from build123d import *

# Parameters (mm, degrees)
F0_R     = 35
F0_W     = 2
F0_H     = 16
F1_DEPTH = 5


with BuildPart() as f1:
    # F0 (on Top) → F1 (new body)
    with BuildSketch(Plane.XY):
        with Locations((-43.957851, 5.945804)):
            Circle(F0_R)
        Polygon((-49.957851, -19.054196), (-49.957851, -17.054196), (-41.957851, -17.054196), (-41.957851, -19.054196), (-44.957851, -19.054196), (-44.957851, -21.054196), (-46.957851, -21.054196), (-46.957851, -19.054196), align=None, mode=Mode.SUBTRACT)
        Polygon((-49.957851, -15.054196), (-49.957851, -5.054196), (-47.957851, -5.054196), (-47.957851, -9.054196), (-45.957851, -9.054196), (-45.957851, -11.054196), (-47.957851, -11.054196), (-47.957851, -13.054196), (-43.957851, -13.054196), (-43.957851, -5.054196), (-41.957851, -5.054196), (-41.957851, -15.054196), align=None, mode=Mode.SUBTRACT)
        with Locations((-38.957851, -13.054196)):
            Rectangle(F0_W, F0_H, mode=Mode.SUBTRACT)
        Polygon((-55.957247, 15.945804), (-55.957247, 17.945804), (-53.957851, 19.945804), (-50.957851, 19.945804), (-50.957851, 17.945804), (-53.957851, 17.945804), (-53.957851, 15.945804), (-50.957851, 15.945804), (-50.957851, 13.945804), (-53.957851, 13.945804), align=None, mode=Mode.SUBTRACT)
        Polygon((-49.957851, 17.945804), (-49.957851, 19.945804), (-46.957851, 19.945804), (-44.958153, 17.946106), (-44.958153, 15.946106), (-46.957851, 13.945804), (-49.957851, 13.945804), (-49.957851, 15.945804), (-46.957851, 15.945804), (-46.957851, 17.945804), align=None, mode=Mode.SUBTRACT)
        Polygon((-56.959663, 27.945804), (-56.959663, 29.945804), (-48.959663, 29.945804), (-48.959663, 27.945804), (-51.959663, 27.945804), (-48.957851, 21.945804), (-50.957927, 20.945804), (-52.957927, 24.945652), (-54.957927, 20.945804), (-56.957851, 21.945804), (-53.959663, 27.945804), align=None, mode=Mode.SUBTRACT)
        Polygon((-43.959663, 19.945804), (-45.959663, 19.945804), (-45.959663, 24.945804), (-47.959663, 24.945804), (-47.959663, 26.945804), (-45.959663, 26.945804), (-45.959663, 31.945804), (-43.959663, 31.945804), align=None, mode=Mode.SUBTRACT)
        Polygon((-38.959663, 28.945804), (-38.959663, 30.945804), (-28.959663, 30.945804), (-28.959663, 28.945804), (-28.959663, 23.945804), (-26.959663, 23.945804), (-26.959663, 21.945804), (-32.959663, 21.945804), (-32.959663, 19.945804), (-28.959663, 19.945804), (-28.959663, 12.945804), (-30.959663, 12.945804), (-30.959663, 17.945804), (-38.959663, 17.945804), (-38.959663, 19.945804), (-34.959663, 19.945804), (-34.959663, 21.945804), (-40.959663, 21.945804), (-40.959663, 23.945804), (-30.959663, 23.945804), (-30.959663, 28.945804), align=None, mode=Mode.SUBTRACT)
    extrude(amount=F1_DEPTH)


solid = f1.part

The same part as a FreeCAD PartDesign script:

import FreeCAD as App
import Part
import Sketcher
from FreeCAD import Vector
Q = App.Units.Quantity

doc = App.newDocument("Part")
body = doc.addObject("PartDesign::Body", "Body")

# Sketch on XY plane
sketch1 = doc.addObject("Sketcher::SketchObject", "Sketch")
body.addObject(sketch1)
sketch1.AttachmentSupport = (doc.XY_Plane, [""])
sketch1.MapMode = "FlatFace"
sketch1.addGeometry(Part.Circle(Vector(-43.957851, 5.945804, 0), Vector(0, 0, 1), 35), False)
sketch1.addGeometry(Part.LineSegment(Vector(-46.957851, -19.054196, 0), Vector(-49.957851, -19.054196, 0)), False)
sketch1.addGeometry(Part.LineSegment(Vector(-49.957851, -19.054196, 0), Vector(-49.957851, -17.054196, 0)), False)
sketch1.addGeometry(Part.LineSegment(Vector(-49.957851, -17.054196, 0), Vector(-41.957851, -17.054196, 0)), False)
sketch1.addGeometry(Part.LineSegment(Vector(-41.957851, -17.054196, 0), Vector(-41.957851, -19.054196, 0)), False)
sketch1.addGeometry(Part.LineSegment(Vector(-41.957851, -19.054196, 0), Vector(-44.957851, -19.054196, 0)), False)
sketch1.addGeometry(Part.LineSegment(Vector(-44.957851, -19.054196, 0), Vector(-44.957851, -21.054196, 0)), False)
sketch1.addGeometry(Part.LineSegment(Vector(-44.957851, -21.054196, 0), Vector(-46.957851, -21.054196, 0)), False)
sketch1.addGeometry(Part.LineSegment(Vector(-46.957851, -21.054196, 0), Vector(-46.957851, -19.054196, 0)), False)
sketch1.addGeometry(Part.LineSegment(Vector(-41.957851, -15.054196, 0), Vector(-49.957851, -15.054196, 0)), False)
sketch1.addGeometry(Part.LineSegment(Vector(-49.957851, -15.054196, 0), Vector(-49.957851, -5.054196, 0)), False)
sketch1.addGeometry(Part.LineSegment(Vector(-49.957851, -5.054196, 0), Vector(-47.957851, -5.054196, 0)), False)
sketch1.addGeometry(Part.LineSegment(Vector(-47.957851, -5.054196, 0), Vector(-47.957851, -9.054196, 0)), False)
sketch1.addGeometry(Part.LineSegment(Vector(-47.957851, -9.054196, 0), Vector(-45.957851, -9.054196, 0)), False)
sketch1.addGeometry(Part.LineSegment(Vector(-45.957851, -9.054196, 0), Vector(-45.957851, -11.054196, 0)), False)
sketch1.addGeometry(Part.LineSegment(Vector(-45.957851, -11.054196, 0), Vector(-47.957851, -11.054196, 0)), False)
sketch1.addGeometry(Part.LineSegment(Vector(-47.957851, -11.054196, 0), Vector(-47.957851, -13.054196, 0)), False)
sketch1.addGeometry(Part.LineSegment(Vector(-47.957851, -13.054196, 0), Vector(-43.957851, -13.054196, 0)), False)
sketch1.addGeometry(Part.LineSegment(Vector(-43.957851, -13.054196, 0), Vector(-43.957851, -5.054196, 0)), False)
sketch1.addGeometry(Part.LineSegment(Vector(-43.957851, -5.054196, 0), Vector(-41.957851, -5.054196, 0)), False)
sketch1.addGeometry(Part.LineSegment(Vector(-41.957851, -5.054196, 0), Vector(-41.957851, -15.054196, 0)), False)
sketch1.addGeometry(Part.LineSegment(Vector(-37.957851, -21.054196, 0), Vector(-39.957851, -21.054196, 0)), False)
sketch1.addGeometry(Part.LineSegment(Vector(-39.957851, -21.054196, 0), Vector(-39.957851, -5.054196, 0)), False)
sketch1.addGeometry(Part.LineSegment(Vector(-39.957851, -5.054196, 0), Vector(-37.957851, -5.054196, 0)), False)
sketch1.addGeometry(Part.LineSegment(Vector(-37.957851, -5.054196, 0), Vector(-37.957851, -21.054196, 0)), False)
sketch1.addGeometry(Part.LineSegment(Vector(-53.957851, 13.945804, 0), Vector(-55.957247, 15.945804, 0)), False)
sketch1.addGeometry(Part.LineSegment(Vector(-55.957247, 15.945804, 0), Vector(-55.957247, 17.945804, 0)), False)
sketch1.addGeometry(Part.LineSegment(Vector(-55.957247, 17.945804, 0), Vector(-53.957851, 19.945804, 0)), False)
sketch1.addGeometry(Part.LineSegment(Vector(-53.957851, 19.945804, 0), Vector(-50.957851, 19.945804, 0)), False)
sketch1.addGeometry(Part.LineSegment(Vector(-50.957851, 19.945804, 0), Vector(-50.957851, 17.945804, 0)), False)
sketch1.addGeometry(Part.LineSegment(Vector(-50.957851, 17.945804, 0), Vector(-53.957851, 17.945804, 0)), False)
sketch1.addGeometry(Part.LineSegment(Vector(-53.957851, 17.945804, 0), Vector(-53.957851, 15.945804, 0)), False)
sketch1.addGeometry(Part.LineSegment(Vector(-53.957851, 15.945804, 0), Vector(-50.957851, 15.945804, 0)), False)
sketch1.addGeometry(Part.LineSegment(Vector(-50.957851, 15.945804, 0), Vector(-50.957851, 13.945804, 0)), False)
sketch1.addGeometry(Part.LineSegment(Vector(-50.957851, 13.945804, 0), Vector(-53.957851, 13.945804, 0)), False)
sketch1.addGeometry(Part.LineSegment(Vector(-46.957851, 17.945804, 0), Vector(-49.957851, 17.945804, 0)), False)
sketch1.addGeometry(Part.LineSegment(Vector(-49.957851, 17.945804, 0), Vector(-49.957851, 19.945804, 0)), False)
sketch1.addGeometry(Part.LineSegment(Vector(-49.957851, 19.945804, 0), Vector(-46.957851, 19.945804, 0)), False)
sketch1.addGeometry(Part.LineSegment(Vector(-46.957851, 19.945804, 0), Vector(-44.958153, 17.946106, 0)), False)
sketch1.addGeometry(Part.LineSegment(Vector(-44.958153, 17.946106, 0), Vector(-44.958153, 15.946106, 0)), False)
sketch1.addGeometry(Part.LineSegment(Vector(-44.958153, 15.946106, 0), Vector(-46.957851, 13.945804, 0)), False)
sketch1.addGeometry(Part.LineSegment(Vector(-46.957851, 13.945804, 0), Vector(-49.957851, 13.945804, 0)), False)
sketch1.addGeometry(Part.LineSegment(Vector(-49.957851, 13.945804, 0), Vector(-49.957851, 15.945804, 0)), False)
sketch1.addGeometry(Part.LineSegment(Vector(-49.957851, 15.945804, 0), Vector(-46.957851, 15.945804, 0)), False)
sketch1.addGeometry(Part.LineSegment(Vector(-46.957851, 15.945804, 0), Vector(-46.957851, 17.945804, 0)), False)
sketch1.addGeometry(Part.LineSegment(Vector(-53.959663, 27.945804, 0), Vector(-56.959663, 27.945804, 0)), False)
sketch1.addGeometry(Part.LineSegment(Vector(-56.959663, 27.945804, 0), Vector(-56.959663, 29.945804, 0)), False)
sketch1.addGeometry(Part.LineSegment(Vector(-56.959663, 29.945804, 0), Vector(-48.959663, 29.945804, 0)), False)
sketch1.addGeometry(Part.LineSegment(Vector(-48.959663, 29.945804, 0), Vector(-48.959663, 27.945804, 0)), False)
sketch1.addGeometry(Part.LineSegment(Vector(-48.959663, 27.945804, 0), Vector(-51.959663, 27.945804, 0)), False)
sketch1.addGeometry(Part.LineSegment(Vector(-51.959663, 27.945804, 0), Vector(-48.957851, 21.945804, 0)), False)
sketch1.addGeometry(Part.LineSegment(Vector(-48.957851, 21.945804, 0), Vector(-50.957927, 20.945804, 0)), False)
sketch1.addGeometry(Part.LineSegment(Vector(-50.957927, 20.945804, 0), Vector(-52.957927, 24.945652, 0)), False)
sketch1.addGeometry(Part.LineSegment(Vector(-52.957927, 24.945652, 0), Vector(-54.957927, 20.945804, 0)), False)
sketch1.addGeometry(Part.LineSegment(Vector(-54.957927, 20.945804, 0), Vector(-56.957851, 21.945804, 0)), False)
sketch1.addGeometry(Part.LineSegment(Vector(-56.957851, 21.945804, 0), Vector(-53.959663, 27.945804, 0)), False)
sketch1.addGeometry(Part.LineSegment(Vector(-43.959663, 31.945804, 0), Vector(-43.959663, 19.945804, 0)), False)
sketch1.addGeometry(Part.LineSegment(Vector(-43.959663, 19.945804, 0), Vector(-45.959663, 19.945804, 0)), False)
sketch1.addGeometry(Part.LineSegment(Vector(-45.959663, 19.945804, 0), Vector(-45.959663, 24.945804, 0)), False)
sketch1.addGeometry(Part.LineSegment(Vector(-45.959663, 24.945804, 0), Vector(-47.959663, 24.945804, 0)), False)
sketch1.addGeometry(Part.LineSegment(Vector(-47.959663, 24.945804, 0), Vector(-47.959663, 26.945804, 0)), False)
sketch1.addGeometry(Part.LineSegment(Vector(-47.959663, 26.945804, 0), Vector(-45.959663, 26.945804, 0)), False)
sketch1.addGeometry(Part.LineSegment(Vector(-45.959663, 26.945804, 0), Vector(-45.959663, 31.945804, 0)), False)
sketch1.addGeometry(Part.LineSegment(Vector(-45.959663, 31.945804, 0), Vector(-43.959663, 31.945804, 0)), False)
sketch1.addGeometry(Part.LineSegment(Vector(-30.959663, 28.945804, 0), Vector(-38.959663, 28.945804, 0)), False)
sketch1.addGeometry(Part.LineSegment(Vector(-38.959663, 28.945804, 0), Vector(-38.959663, 30.945804, 0)), False)
sketch1.addGeometry(Part.LineSegment(Vector(-38.959663, 30.945804, 0), Vector(-28.959663, 30.945804, 0)), False)
sketch1.addGeometry(Part.LineSegment(Vector(-28.959663, 30.945804, 0), Vector(-28.959663, 23.945804, 0)), False)
sketch1.addGeometry(Part.LineSegment(Vector(-28.959663, 23.945804, 0), Vector(-26.959663, 23.945804, 0)), False)
sketch1.addGeometry(Part.LineSegment(Vector(-26.959663, 23.945804, 0), Vector(-26.959663, 21.945804, 0)), False)
sketch1.addGeometry(Part.LineSegment(Vector(-26.959663, 21.945804, 0), Vector(-32.959663, 21.945804, 0)), False)
sketch1.addGeometry(Part.LineSegment(Vector(-32.959663, 21.945804, 0), Vector(-32.959663, 19.945804, 0)), False)
sketch1.addGeometry(Part.LineSegment(Vector(-32.959663, 19.945804, 0), Vector(-28.959663, 19.945804, 0)), False)
sketch1.addGeometry(Part.LineSegment(Vector(-28.959663, 19.945804, 0), Vector(-28.959663, 12.945804, 0)), False)
sketch1.addGeometry(Part.LineSegment(Vector(-28.959663, 12.945804, 0), Vector(-30.959663, 12.945804, 0)), False)
sketch1.addGeometry(Part.LineSegment(Vector(-30.959663, 12.945804, 0), Vector(-30.959663, 17.945804, 0)), False)
sketch1.addGeometry(Part.LineSegment(Vector(-30.959663, 17.945804, 0), Vector(-38.959663, 17.945804, 0)), False)
sketch1.addGeometry(Part.LineSegment(Vector(-38.959663, 17.945804, 0), Vector(-38.959663, 19.945804, 0)), False)
sketch1.addGeometry(Part.LineSegment(Vector(-38.959663, 19.945804, 0), Vector(-34.959663, 19.945804, 0)), False)
sketch1.addGeometry(Part.LineSegment(Vector(-34.959663, 19.945804, 0), Vector(-34.959663, 21.945804, 0)), False)
sketch1.addGeometry(Part.LineSegment(Vector(-34.959663, 21.945804, 0), Vector(-40.959663, 21.945804, 0)), False)
sketch1.addGeometry(Part.LineSegment(Vector(-40.959663, 21.945804, 0), Vector(-40.959663, 23.945804, 0)), False)
sketch1.addGeometry(Part.LineSegment(Vector(-40.959663, 23.945804, 0), Vector(-30.959663, 23.945804, 0)), False)
sketch1.addGeometry(Part.LineSegment(Vector(-30.959663, 23.945804, 0), Vector(-30.959663, 28.945804, 0)), False)
sketch1.addConstraint(Sketcher.Constraint("Coincident", 1, 2, 2, 1))
sketch1.addConstraint(Sketcher.Constraint("Coincident", 2, 2, 3, 1))
sketch1.addConstraint(Sketcher.Constraint("Coincident", 3, 2, 4, 1))
sketch1.addConstraint(Sketcher.Constraint("Coincident", 4, 2, 5, 1))
sketch1.addConstraint(Sketcher.Constraint("Coincident", 5, 2, 6, 1))
sketch1.addConstraint(Sketcher.Constraint("Coincident", 6, 2, 7, 1))
sketch1.addConstraint(Sketcher.Constraint("Coincident", 7, 2, 8, 1))
sketch1.addConstraint(Sketcher.Constraint("Coincident", 8, 2, 1, 1))
sketch1.addConstraint(Sketcher.Constraint("Coincident", 9, 2, 10, 1))
sketch1.addConstraint(Sketcher.Constraint("Coincident", 10, 2, 11, 1))
sketch1.addConstraint(Sketcher.Constraint("Coincident", 11, 2, 12, 1))
sketch1.addConstraint(Sketcher.Constraint("Coincident", 12, 2, 13, 1))
sketch1.addConstraint(Sketcher.Constraint("Coincident", 13, 2, 14, 1))
sketch1.addConstraint(Sketcher.Constraint("Coincident", 14, 2, 15, 1))
sketch1.addConstraint(Sketcher.Constraint("Coincident", 15, 2, 16, 1))
sketch1.addConstraint(Sketcher.Constraint("Coincident", 16, 2, 17, 1))
sketch1.addConstraint(Sketcher.Constraint("Coincident", 17, 2, 18, 1))
sketch1.addConstraint(Sketcher.Constraint("Coincident", 18, 2, 19, 1))
sketch1.addConstraint(Sketcher.Constraint("Coincident", 19, 2, 20, 1))
sketch1.addConstraint(Sketcher.Constraint("Coincident", 20, 2, 9, 1))
sketch1.addConstraint(Sketcher.Constraint("Coincident", 21, 2, 22, 1))
sketch1.addConstraint(Sketcher.Constraint("Coincident", 22, 2, 23, 1))
sketch1.addConstraint(Sketcher.Constraint("Coincident", 23, 2, 24, 1))
sketch1.addConstraint(Sketcher.Constraint("Coincident", 24, 2, 21, 1))
sketch1.addConstraint(Sketcher.Constraint("Coincident", 25, 2, 26, 1))
sketch1.addConstraint(Sketcher.Constraint("Coincident", 26, 2, 27, 1))
sketch1.addConstraint(Sketcher.Constraint("Coincident", 27, 2, 28, 1))
sketch1.addConstraint(Sketcher.Constraint("Coincident", 28, 2, 29, 1))
sketch1.addConstraint(Sketcher.Constraint("Coincident", 29, 2, 30, 1))
sketch1.addConstraint(Sketcher.Constraint("Coincident", 30, 2, 31, 1))
sketch1.addConstraint(Sketcher.Constraint("Coincident", 31, 2, 32, 1))
sketch1.addConstraint(Sketcher.Constraint("Coincident", 32, 2, 33, 1))
sketch1.addConstraint(Sketcher.Constraint("Coincident", 33, 2, 34, 1))
sketch1.addConstraint(Sketcher.Constraint("Coincident", 34, 2, 25, 1))
sketch1.addConstraint(Sketcher.Constraint("Coincident", 35, 2, 36, 1))
sketch1.addConstraint(Sketcher.Constraint("Coincident", 36, 2, 37, 1))
sketch1.addConstraint(Sketcher.Constraint("Coincident", 37, 2, 38, 1))
sketch1.addConstraint(Sketcher.Constraint("Coincident", 38, 2, 39, 1))
sketch1.addConstraint(Sketcher.Constraint("Coincident", 39, 2, 40, 1))
sketch1.addConstraint(Sketcher.Constraint("Coincident", 40, 2, 41, 1))
sketch1.addConstraint(Sketcher.Constraint("Coincident", 41, 2, 42, 1))
sketch1.addConstraint(Sketcher.Constraint("Coincident", 42, 2, 43, 1))
sketch1.addConstraint(Sketcher.Constraint("Coincident", 43, 2, 44, 1))
sketch1.addConstraint(Sketcher.Constraint("Coincident", 44, 2, 35, 1))
sketch1.addConstraint(Sketcher.Constraint("Coincident", 45, 2, 46, 1))
sketch1.addConstraint(Sketcher.Constraint("Coincident", 46, 2, 47, 1))
sketch1.addConstraint(Sketcher.Constraint("Coincident", 47, 2, 48, 1))
sketch1.addConstraint(Sketcher.Constraint("Coincident", 48, 2, 49, 1))
sketch1.addConstraint(Sketcher.Constraint("Coincident", 49, 2, 50, 1))
sketch1.addConstraint(Sketcher.Constraint("Coincident", 50, 2, 51, 1))
sketch1.addConstraint(Sketcher.Constraint("Coincident", 51, 2, 52, 1))
sketch1.addConstraint(Sketcher.Constraint("Coincident", 52, 2, 53, 1))
sketch1.addConstraint(Sketcher.Constraint("Coincident", 53, 2, 54, 1))
sketch1.addConstraint(Sketcher.Constraint("Coincident", 54, 2, 55, 1))
sketch1.addConstraint(Sketcher.Constraint("Coincident", 55, 2, 45, 1))
sketch1.addConstraint(Sketcher.Constraint("Coincident", 56, 2, 57, 1))
sketch1.addConstraint(Sketcher.Constraint("Coincident", 57, 2, 58, 1))
sketch1.addConstraint(Sketcher.Constraint("Coincident", 58, 2, 59, 1))
sketch1.addConstraint(Sketcher.Constraint("Coincident", 59, 2, 60, 1))
sketch1.addConstraint(Sketcher.Constraint("Coincident", 60, 2, 61, 1))
sketch1.addConstraint(Sketcher.Constraint("Coincident", 61, 2, 62, 1))
sketch1.addConstraint(Sketcher.Constraint("Coincident", 62, 2, 63, 1))
sketch1.addConstraint(Sketcher.Constraint("Coincident", 63, 2, 56, 1))
sketch1.addConstraint(Sketcher.Constraint("Coincident", 64, 2, 65, 1))
sketch1.addConstraint(Sketcher.Constraint("Coincident", 65, 2, 66, 1))
sketch1.addConstraint(Sketcher.Constraint("Coincident", 66, 2, 67, 1))
sketch1.addConstraint(Sketcher.Constraint("Coincident", 67, 2, 68, 1))
sketch1.addConstraint(Sketcher.Constraint("Coincident", 68, 2, 69, 1))
sketch1.addConstraint(Sketcher.Constraint("Coincident", 69, 2, 70, 1))
sketch1.addConstraint(Sketcher.Constraint("Coincident", 70, 2, 71, 1))
sketch1.addConstraint(Sketcher.Constraint("Coincident", 71, 2, 72, 1))
sketch1.addConstraint(Sketcher.Constraint("Coincident", 72, 2, 73, 1))
sketch1.addConstraint(Sketcher.Constraint("Coincident", 73, 2, 74, 1))
sketch1.addConstraint(Sketcher.Constraint("Coincident", 74, 2, 75, 1))
sketch1.addConstraint(Sketcher.Constraint("Coincident", 75, 2, 76, 1))
sketch1.addConstraint(Sketcher.Constraint("Coincident", 76, 2, 77, 1))
sketch1.addConstraint(Sketcher.Constraint("Coincident", 77, 2, 78, 1))
sketch1.addConstraint(Sketcher.Constraint("Coincident", 78, 2, 79, 1))
sketch1.addConstraint(Sketcher.Constraint("Coincident", 79, 2, 80, 1))
sketch1.addConstraint(Sketcher.Constraint("Coincident", 80, 2, 81, 1))
sketch1.addConstraint(Sketcher.Constraint("Coincident", 81, 2, 82, 1))
sketch1.addConstraint(Sketcher.Constraint("Coincident", 82, 2, 83, 1))
sketch1.addConstraint(Sketcher.Constraint("Coincident", 83, 2, 64, 1))
sketch1.addConstraint(Sketcher.Constraint("Horizontal", 1))
sketch1.addConstraint(Sketcher.Constraint("Vertical", 2))
sketch1.addConstraint(Sketcher.Constraint("Horizontal", 3))
sketch1.addConstraint(Sketcher.Constraint("Vertical", 4))
sketch1.addConstraint(Sketcher.Constraint("Horizontal", 5))
sketch1.addConstraint(Sketcher.Constraint("Vertical", 6))
sketch1.addConstraint(Sketcher.Constraint("Horizontal", 7))
sketch1.addConstraint(Sketcher.Constraint("Vertical", 8))
sketch1.addConstraint(Sketcher.Constraint("Horizontal", 9))
sketch1.addConstraint(Sketcher.Constraint("Vertical", 10))
sketch1.addConstraint(Sketcher.Constraint("Horizontal", 11))
sketch1.addConstraint(Sketcher.Constraint("Vertical", 12))
sketch1.addConstraint(Sketcher.Constraint("Horizontal", 13))
sketch1.addConstraint(Sketcher.Constraint("Vertical", 14))
sketch1.addConstraint(Sketcher.Constraint("Horizontal", 15))
sketch1.addConstraint(Sketcher.Constraint("Vertical", 16))
sketch1.addConstraint(Sketcher.Constraint("Horizontal", 17))
sketch1.addConstraint(Sketcher.Constraint("Vertical", 18))
sketch1.addConstraint(Sketcher.Constraint("Horizontal", 19))
sketch1.addConstraint(Sketcher.Constraint("Vertical", 20))
sketch1.addConstraint(Sketcher.Constraint("Horizontal", 21))
sketch1.addConstraint(Sketcher.Constraint("Vertical", 22))
sketch1.addConstraint(Sketcher.Constraint("Horizontal", 23))
sketch1.addConstraint(Sketcher.Constraint("Vertical", 24))
sketch1.addConstraint(Sketcher.Constraint("Vertical", 26))
sketch1.addConstraint(Sketcher.Constraint("Horizontal", 28))
sketch1.addConstraint(Sketcher.Constraint("Vertical", 29))
sketch1.addConstraint(Sketcher.Constraint("Horizontal", 30))
sketch1.addConstraint(Sketcher.Constraint("Vertical", 31))
sketch1.addConstraint(Sketcher.Constraint("Horizontal", 32))
sketch1.addConstraint(Sketcher.Constraint("Vertical", 33))
sketch1.addConstraint(Sketcher.Constraint("Horizontal", 34))
sketch1.addConstraint(Sketcher.Constraint("Horizontal", 35))
sketch1.addConstraint(Sketcher.Constraint("Vertical", 36))
sketch1.addConstraint(Sketcher.Constraint("Horizontal", 37))
sketch1.addConstraint(Sketcher.Constraint("Vertical", 39))
sketch1.addConstraint(Sketcher.Constraint("Horizontal", 41))
sketch1.addConstraint(Sketcher.Constraint("Vertical", 42))
sketch1.addConstraint(Sketcher.Constraint("Horizontal", 43))
sketch1.addConstraint(Sketcher.Constraint("Vertical", 44))
sketch1.addConstraint(Sketcher.Constraint("Horizontal", 45))
sketch1.addConstraint(Sketcher.Constraint("Vertical", 46))
sketch1.addConstraint(Sketcher.Constraint("Horizontal", 47))
sketch1.addConstraint(Sketcher.Constraint("Vertical", 48))
sketch1.addConstraint(Sketcher.Constraint("Horizontal", 49))
sketch1.addConstraint(Sketcher.Constraint("Vertical", 56))
sketch1.addConstraint(Sketcher.Constraint("Horizontal", 57))
sketch1.addConstraint(Sketcher.Constraint("Vertical", 58))
sketch1.addConstraint(Sketcher.Constraint("Horizontal", 59))
sketch1.addConstraint(Sketcher.Constraint("Vertical", 60))
sketch1.addConstraint(Sketcher.Constraint("Horizontal", 61))
sketch1.addConstraint(Sketcher.Constraint("Vertical", 62))
sketch1.addConstraint(Sketcher.Constraint("Horizontal", 63))
sketch1.addConstraint(Sketcher.Constraint("Horizontal", 64))
sketch1.addConstraint(Sketcher.Constraint("Vertical", 65))
sketch1.addConstraint(Sketcher.Constraint("Horizontal", 66))
sketch1.addConstraint(Sketcher.Constraint("Vertical", 67))
sketch1.addConstraint(Sketcher.Constraint("Horizontal", 68))
sketch1.addConstraint(Sketcher.Constraint("Vertical", 69))
sketch1.addConstraint(Sketcher.Constraint("Horizontal", 70))
sketch1.addConstraint(Sketcher.Constraint("Vertical", 71))
sketch1.addConstraint(Sketcher.Constraint("Horizontal", 72))
sketch1.addConstraint(Sketcher.Constraint("Vertical", 73))
sketch1.addConstraint(Sketcher.Constraint("Horizontal", 74))
sketch1.addConstraint(Sketcher.Constraint("Vertical", 75))
sketch1.addConstraint(Sketcher.Constraint("Horizontal", 76))
sketch1.addConstraint(Sketcher.Constraint("Vertical", 77))
sketch1.addConstraint(Sketcher.Constraint("Horizontal", 78))
sketch1.addConstraint(Sketcher.Constraint("Vertical", 79))
sketch1.addConstraint(Sketcher.Constraint("Horizontal", 80))
sketch1.addConstraint(Sketcher.Constraint("Vertical", 81))
sketch1.addConstraint(Sketcher.Constraint("Horizontal", 82))
sketch1.addConstraint(Sketcher.Constraint("Vertical", 83))
sketch1.addConstraint(Sketcher.Constraint("Parallel", 27, 40))
sketch1.addConstraint(Sketcher.Constraint("Perpendicular", 53, 54))
sketch1.addConstraint(Sketcher.Constraint("Horizontal", 1, 2, 4, 2))
sketch1.addConstraint(Sketcher.Constraint("Horizontal", 11, 2, 18, 2))
sketch1.addConstraint(Sketcher.Constraint("Horizontal", 7, 2, 21, 2))
sketch1.addConstraint(Sketcher.Constraint("Horizontal", 19, 2, 22, 2))
sketch1.addConstraint(Sketcher.Constraint("Horizontal", 26, 2, 29, 2))
sketch1.addConstraint(Sketcher.Constraint("Horizontal", 25, 2, 31, 2))
sketch1.addConstraint(Sketcher.Constraint("Horizontal", 30, 2, 35, 2))
sketch1.addConstraint(Sketcher.Constraint("Horizontal", 28, 2, 36, 2))
sketch1.addConstraint(Sketcher.Constraint("Horizontal", 34, 2, 40, 2))
sketch1.addConstraint(Sketcher.Constraint("Horizontal", 32, 2, 42, 2))
sketch1.addConstraint(Sketcher.Constraint("Horizontal", 45, 2, 48, 2))
sketch1.addConstraint(Sketcher.Constraint("Horizontal", 51, 2, 53, 2))
sketch1.addConstraint(Sketcher.Constraint("Horizontal", 50, 2, 54, 2))
sketch1.addConstraint(Sketcher.Constraint("Horizontal", 37, 2, 56, 2))
sketch1.addConstraint(Sketcher.Constraint("Horizontal", 54, 2, 69, 2))
sketch1.addConstraint(Sketcher.Constraint("Horizontal", 57, 2, 71, 2))
sketch1.addConstraint(Sketcher.Constraint("Horizontal", 44, 2, 75, 2))
sketch1.addConstraint(Sketcher.Constraint("Horizontal", 72, 2, 77, 2))
sketch1.addConstraint(Sketcher.Constraint("Horizontal", 70, 2, 79, 2))
sketch1.addConstraint(Sketcher.Constraint("Horizontal", 68, 2, 81, 2))
sketch1.addConstraint(Sketcher.Constraint("Vertical", 2, 2, 9, 2))
sketch1.addConstraint(Sketcher.Constraint("Vertical", 12, 2, 15, 2))
sketch1.addConstraint(Sketcher.Constraint("Vertical", 0, 3, 17, 2))
sketch1.addConstraint(Sketcher.Constraint("Vertical", 4, 2, 19, 2))
sketch1.addConstraint(Sketcher.Constraint("Vertical", 27, 2, 30, 2))
sketch1.addConstraint(Sketcher.Constraint("Vertical", 29, 2, 32, 2))
sketch1.addConstraint(Sketcher.Constraint("Vertical", 31, 2, 34, 2))
sketch1.addConstraint(Sketcher.Constraint("Vertical", 10, 2, 35, 2))
sketch1.addConstraint(Sketcher.Constraint("Vertical", 8, 2, 37, 2))
sketch1.addConstraint(Sketcher.Constraint("Vertical", 37, 2, 40, 2))
sketch1.addConstraint(Sketcher.Constraint("Vertical", 36, 2, 41, 2))
sketch1.addConstraint(Sketcher.Constraint("Vertical", 40, 2, 43, 2))
sketch1.addConstraint(Sketcher.Constraint("Vertical", 58, 2, 61, 2))
sketch1.addConstraint(Sketcher.Constraint("Vertical", 67, 2, 72, 2))
sketch1.addConstraint(Sketcher.Constraint("Vertical", 65, 2, 76, 2))
sketch1.addConstraint(Sketcher.Constraint("Vertical", 75, 2, 82, 2))
sketch1.addConstraint(Sketcher.Constraint("Equal", 1, 5))
sketch1.addConstraint(Sketcher.Constraint("Equal", 7, 11))
sketch1.addConstraint(Sketcher.Constraint("Equal", 11, 13))
sketch1.addConstraint(Sketcher.Constraint("Equal", 15, 19))
sketch1.addConstraint(Sketcher.Constraint("Equal", 19, 21))
sketch1.addConstraint(Sketcher.Constraint("Equal", 5, 28))
sketch1.addConstraint(Sketcher.Constraint("Equal", 43, 45))
sketch1.addConstraint(Sketcher.Constraint("Equal", 9, 47))
sketch1.addConstraint(Sketcher.Constraint("Equal", 45, 49))
sketch1.addConstraint(Sketcher.Constraint("Equal", 23, 57))
sketch1.addConstraint(Sketcher.Constraint("Equal", 57, 59))
sketch1.addConstraint(Sketcher.Constraint("Equal", 47, 64))
sketch1.addConstraint(Sketcher.Constraint("Equal", 63, 68))
sketch1.addConstraint(Sketcher.Constraint("Equal", 17, 72))
sketch1.addConstraint(Sketcher.Constraint("Equal", 68, 74))
sketch1.addConstraint(Sketcher.Constraint("Equal", 72, 78))
sketch1.addConstraint(Sketcher.Constraint("Equal", 70, 80))
sketch1.addConstraint(Sketcher.Constraint("Equal", 74, 2))
sketch1.addConstraint(Sketcher.Constraint("Equal", 4, 6))
sketch1.addConstraint(Sketcher.Constraint("Equal", 82, 10))
sketch1.addConstraint(Sketcher.Constraint("Equal", 78, 12))
sketch1.addConstraint(Sketcher.Constraint("Equal", 8, 14))
sketch1.addConstraint(Sketcher.Constraint("Equal", 14, 16))
sketch1.addConstraint(Sketcher.Constraint("Equal", 16, 26))
sketch1.addConstraint(Sketcher.Constraint("Equal", 26, 29))
sketch1.addConstraint(Sketcher.Constraint("Equal", 31, 33))
sketch1.addConstraint(Sketcher.Constraint("Equal", 36, 39))
sketch1.addConstraint(Sketcher.Constraint("Equal", 44, 46))
sketch1.addConstraint(Sketcher.Constraint("Equal", 48, 60))
sketch1.addConstraint(Sketcher.Constraint("Equal", 58, 62))
sketch1.addConstraint(Sketcher.Constraint("Equal", 60, 65))
sketch1.addConstraint(Sketcher.Constraint("Equal", 65, 69))
sketch1.addConstraint(Sketcher.Constraint("Equal", 69, 71))
sketch1.addConstraint(Sketcher.Constraint("Equal", 67, 73))
sketch1.addConstraint(Sketcher.Constraint("Equal", 62, 75))
sketch1.addConstraint(Sketcher.Constraint("Equal", 52, 53))
sketch1.addConstraint(Sketcher.Constraint("Diameter", 0, Q("70 mm")))
sketch1.addConstraint(Sketcher.Constraint("DistanceX", 1, 2, 1, 1, Q("3 mm")))
sketch1.addConstraint(Sketcher.Constraint("DistanceX", 3, 1, 3, 2, Q("8 mm")))
sketch1.addConstraint(Sketcher.Constraint("DistanceY", 22, 1, 22, 2, Q("16 mm")))
sketch1.addConstraint(Sketcher.Constraint("DistanceY", 56, 2, 56, 1, Q("12 mm")))
sketch1.addConstraint(Sketcher.Constraint("Angle", 38, Q("-45 deg")))
sketch1.addConstraint(Sketcher.Constraint("Distance", 25, Q("2.828 mm")))
sketch1.addConstraint(Sketcher.Constraint("Distance", 52, Q("4.472 mm")))
sketch1.addConstraint(Sketcher.Constraint("Distance", 54, Q("2.236 mm")))
sketch1.addConstraint(Sketcher.Constraint("DistanceX", 0, 3, -1, 1, Q("43.957851 mm")))
sketch1.addConstraint(Sketcher.Constraint("DistanceX", 21, 2, -1, 1, Q("39.957851 mm")))
sketch1.addConstraint(Sketcher.Constraint("DistanceX", 27, 2, -1, 1, Q("53.957851 mm")))
sketch1.addConstraint(Sketcher.Constraint("DistanceX", 50, 2, -1, 1, Q("48.957851 mm")))
sketch1.addConstraint(Sketcher.Constraint("DistanceY", -1, 1, 52, 2, Q("24.945652 mm")))
sketch1.addConstraint(Sketcher.Constraint("DistanceX", 54, 2, -1, 1, Q("56.957851 mm")))
sketch1.addConstraint(Sketcher.Constraint("Distance", 50, Q("6.709014 mm")))
sketch1.addConstraint(Sketcher.Constraint("Distance", 51, Q("2.236136 mm")))
sketch1.addConstraint(Sketcher.Constraint("Distance", 55, Q("6.707394 mm")))
sketch1.addConstraint(Sketcher.Constraint("DistanceY", -1, 1, 0, 3, Q("5.945804 mm")))
sketch1.addConstraint(Sketcher.Constraint("DistanceY", 1, 2, -1, 1, Q("19.054196 mm")))
sketch1.addConstraint(Sketcher.Constraint("DistanceX", 56, 2, -1, 1, Q("43.959663 mm")))
sketch1.addConstraint(Sketcher.Constraint("DistanceX", 64, 2, -1, 1, Q("38.959663 mm")))
pad1 = doc.addObject("PartDesign::Pad", "Pad")
body.addObject(pad1)
pad1.Profile = sketch1
pad1.Length = 5

doc.recompute()
